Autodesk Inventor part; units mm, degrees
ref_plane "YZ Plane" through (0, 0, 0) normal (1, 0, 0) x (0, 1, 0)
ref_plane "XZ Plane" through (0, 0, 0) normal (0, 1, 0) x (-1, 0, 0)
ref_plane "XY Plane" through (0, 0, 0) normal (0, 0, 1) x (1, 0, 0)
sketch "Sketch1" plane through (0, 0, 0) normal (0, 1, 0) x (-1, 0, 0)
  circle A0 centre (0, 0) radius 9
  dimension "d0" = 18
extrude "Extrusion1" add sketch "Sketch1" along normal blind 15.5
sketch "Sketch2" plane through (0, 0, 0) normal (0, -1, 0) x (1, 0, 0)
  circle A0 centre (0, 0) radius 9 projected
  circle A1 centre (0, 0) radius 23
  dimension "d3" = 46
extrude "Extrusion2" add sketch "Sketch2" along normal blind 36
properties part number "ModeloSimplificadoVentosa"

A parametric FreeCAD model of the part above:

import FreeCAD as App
import Part
import Sketcher

V = App.Vector

doc = App.newDocument("Part")
params = doc.addObject("Spreadsheet::Sheet", "Params")
for row, (alias, value) in enumerate([
    ("sketch1_diameter", "18 mm"),
    ("pad1_length", "15.5 mm"),
    ("sketch2_diameter", "46 mm"),
    ("sketch2_diameter2", "18 mm"),
    ("pad2_length", "36 mm"),
], start=1):
    params.set(f"A{row}", alias)
    params.set(f"B{row}", "=" + value)
    params.setAlias(f"B{row}", alias)

body = doc.addObject("PartDesign::Body", "Body")
body.AllowCompound = True

# Sketch on XZ plane
sketch1 = doc.addObject("Sketcher::SketchObject", "Sketch")
body.addObject(sketch1)
sketch1.AttachmentSupport = (doc.XZ_Plane, [""])
sketch1.MapMode = "FlatFace"
sketch1.addGeometry(Part.Circle(V(0, 0, 0), V(0, 0, 1), 9), False)
sketch1.addConstraint(Sketcher.Constraint("Coincident", 0, 3, -1, 1))
sketch1.addConstraint(Sketcher.Constraint("Diameter", 0, 18.0))
sketch1.setExpression("Constraints[1]", "Params.sketch1_diameter")
pad1 = doc.addObject("PartDesign::Pad", "Pad")
body.addObject(pad1)
pad1.Profile = sketch1
pad1.setExpression("Length", "Params.pad1_length")
pad1.Reversed = True

# Sketch on XZ plane
sketch2 = doc.addObject("Sketcher::SketchObject", "Sketch001")
body.addObject(sketch2)
sketch2.AttachmentSupport = (doc.XZ_Plane, [""])
sketch2.MapMode = "FlatFace"
sketch2.addGeometry(Part.Circle(V(0, 0, 0), V(0, 0, 1), 23), False)
sketch2.addGeometry(Part.Circle(V(0, 0, 0), V(0, 0, 1), 9), False)
sketch2.addConstraint(Sketcher.Constraint("Coincident", 0, 3, -1, 1))
sketch2.addConstraint(Sketcher.Constraint("Coincident", 1, 3, -1, 1))
sketch2.addConstraint(Sketcher.Constraint("Diameter", 0, 46.0))
sketch2.addConstraint(Sketcher.Constraint("Diameter", 1, 18.0))
sketch2.setExpression("Constraints[2]", "Params.sketch2_diameter")
sketch2.setExpression("Constraints[3]", "Params.sketch2_diameter2")
pad2 = doc.addObject("PartDesign::Pad", "Pad001")
body.addObject(pad2)
pad2.Profile = sketch2
pad2.setExpression("Length", "Params.pad2_length")

doc.recompute()
